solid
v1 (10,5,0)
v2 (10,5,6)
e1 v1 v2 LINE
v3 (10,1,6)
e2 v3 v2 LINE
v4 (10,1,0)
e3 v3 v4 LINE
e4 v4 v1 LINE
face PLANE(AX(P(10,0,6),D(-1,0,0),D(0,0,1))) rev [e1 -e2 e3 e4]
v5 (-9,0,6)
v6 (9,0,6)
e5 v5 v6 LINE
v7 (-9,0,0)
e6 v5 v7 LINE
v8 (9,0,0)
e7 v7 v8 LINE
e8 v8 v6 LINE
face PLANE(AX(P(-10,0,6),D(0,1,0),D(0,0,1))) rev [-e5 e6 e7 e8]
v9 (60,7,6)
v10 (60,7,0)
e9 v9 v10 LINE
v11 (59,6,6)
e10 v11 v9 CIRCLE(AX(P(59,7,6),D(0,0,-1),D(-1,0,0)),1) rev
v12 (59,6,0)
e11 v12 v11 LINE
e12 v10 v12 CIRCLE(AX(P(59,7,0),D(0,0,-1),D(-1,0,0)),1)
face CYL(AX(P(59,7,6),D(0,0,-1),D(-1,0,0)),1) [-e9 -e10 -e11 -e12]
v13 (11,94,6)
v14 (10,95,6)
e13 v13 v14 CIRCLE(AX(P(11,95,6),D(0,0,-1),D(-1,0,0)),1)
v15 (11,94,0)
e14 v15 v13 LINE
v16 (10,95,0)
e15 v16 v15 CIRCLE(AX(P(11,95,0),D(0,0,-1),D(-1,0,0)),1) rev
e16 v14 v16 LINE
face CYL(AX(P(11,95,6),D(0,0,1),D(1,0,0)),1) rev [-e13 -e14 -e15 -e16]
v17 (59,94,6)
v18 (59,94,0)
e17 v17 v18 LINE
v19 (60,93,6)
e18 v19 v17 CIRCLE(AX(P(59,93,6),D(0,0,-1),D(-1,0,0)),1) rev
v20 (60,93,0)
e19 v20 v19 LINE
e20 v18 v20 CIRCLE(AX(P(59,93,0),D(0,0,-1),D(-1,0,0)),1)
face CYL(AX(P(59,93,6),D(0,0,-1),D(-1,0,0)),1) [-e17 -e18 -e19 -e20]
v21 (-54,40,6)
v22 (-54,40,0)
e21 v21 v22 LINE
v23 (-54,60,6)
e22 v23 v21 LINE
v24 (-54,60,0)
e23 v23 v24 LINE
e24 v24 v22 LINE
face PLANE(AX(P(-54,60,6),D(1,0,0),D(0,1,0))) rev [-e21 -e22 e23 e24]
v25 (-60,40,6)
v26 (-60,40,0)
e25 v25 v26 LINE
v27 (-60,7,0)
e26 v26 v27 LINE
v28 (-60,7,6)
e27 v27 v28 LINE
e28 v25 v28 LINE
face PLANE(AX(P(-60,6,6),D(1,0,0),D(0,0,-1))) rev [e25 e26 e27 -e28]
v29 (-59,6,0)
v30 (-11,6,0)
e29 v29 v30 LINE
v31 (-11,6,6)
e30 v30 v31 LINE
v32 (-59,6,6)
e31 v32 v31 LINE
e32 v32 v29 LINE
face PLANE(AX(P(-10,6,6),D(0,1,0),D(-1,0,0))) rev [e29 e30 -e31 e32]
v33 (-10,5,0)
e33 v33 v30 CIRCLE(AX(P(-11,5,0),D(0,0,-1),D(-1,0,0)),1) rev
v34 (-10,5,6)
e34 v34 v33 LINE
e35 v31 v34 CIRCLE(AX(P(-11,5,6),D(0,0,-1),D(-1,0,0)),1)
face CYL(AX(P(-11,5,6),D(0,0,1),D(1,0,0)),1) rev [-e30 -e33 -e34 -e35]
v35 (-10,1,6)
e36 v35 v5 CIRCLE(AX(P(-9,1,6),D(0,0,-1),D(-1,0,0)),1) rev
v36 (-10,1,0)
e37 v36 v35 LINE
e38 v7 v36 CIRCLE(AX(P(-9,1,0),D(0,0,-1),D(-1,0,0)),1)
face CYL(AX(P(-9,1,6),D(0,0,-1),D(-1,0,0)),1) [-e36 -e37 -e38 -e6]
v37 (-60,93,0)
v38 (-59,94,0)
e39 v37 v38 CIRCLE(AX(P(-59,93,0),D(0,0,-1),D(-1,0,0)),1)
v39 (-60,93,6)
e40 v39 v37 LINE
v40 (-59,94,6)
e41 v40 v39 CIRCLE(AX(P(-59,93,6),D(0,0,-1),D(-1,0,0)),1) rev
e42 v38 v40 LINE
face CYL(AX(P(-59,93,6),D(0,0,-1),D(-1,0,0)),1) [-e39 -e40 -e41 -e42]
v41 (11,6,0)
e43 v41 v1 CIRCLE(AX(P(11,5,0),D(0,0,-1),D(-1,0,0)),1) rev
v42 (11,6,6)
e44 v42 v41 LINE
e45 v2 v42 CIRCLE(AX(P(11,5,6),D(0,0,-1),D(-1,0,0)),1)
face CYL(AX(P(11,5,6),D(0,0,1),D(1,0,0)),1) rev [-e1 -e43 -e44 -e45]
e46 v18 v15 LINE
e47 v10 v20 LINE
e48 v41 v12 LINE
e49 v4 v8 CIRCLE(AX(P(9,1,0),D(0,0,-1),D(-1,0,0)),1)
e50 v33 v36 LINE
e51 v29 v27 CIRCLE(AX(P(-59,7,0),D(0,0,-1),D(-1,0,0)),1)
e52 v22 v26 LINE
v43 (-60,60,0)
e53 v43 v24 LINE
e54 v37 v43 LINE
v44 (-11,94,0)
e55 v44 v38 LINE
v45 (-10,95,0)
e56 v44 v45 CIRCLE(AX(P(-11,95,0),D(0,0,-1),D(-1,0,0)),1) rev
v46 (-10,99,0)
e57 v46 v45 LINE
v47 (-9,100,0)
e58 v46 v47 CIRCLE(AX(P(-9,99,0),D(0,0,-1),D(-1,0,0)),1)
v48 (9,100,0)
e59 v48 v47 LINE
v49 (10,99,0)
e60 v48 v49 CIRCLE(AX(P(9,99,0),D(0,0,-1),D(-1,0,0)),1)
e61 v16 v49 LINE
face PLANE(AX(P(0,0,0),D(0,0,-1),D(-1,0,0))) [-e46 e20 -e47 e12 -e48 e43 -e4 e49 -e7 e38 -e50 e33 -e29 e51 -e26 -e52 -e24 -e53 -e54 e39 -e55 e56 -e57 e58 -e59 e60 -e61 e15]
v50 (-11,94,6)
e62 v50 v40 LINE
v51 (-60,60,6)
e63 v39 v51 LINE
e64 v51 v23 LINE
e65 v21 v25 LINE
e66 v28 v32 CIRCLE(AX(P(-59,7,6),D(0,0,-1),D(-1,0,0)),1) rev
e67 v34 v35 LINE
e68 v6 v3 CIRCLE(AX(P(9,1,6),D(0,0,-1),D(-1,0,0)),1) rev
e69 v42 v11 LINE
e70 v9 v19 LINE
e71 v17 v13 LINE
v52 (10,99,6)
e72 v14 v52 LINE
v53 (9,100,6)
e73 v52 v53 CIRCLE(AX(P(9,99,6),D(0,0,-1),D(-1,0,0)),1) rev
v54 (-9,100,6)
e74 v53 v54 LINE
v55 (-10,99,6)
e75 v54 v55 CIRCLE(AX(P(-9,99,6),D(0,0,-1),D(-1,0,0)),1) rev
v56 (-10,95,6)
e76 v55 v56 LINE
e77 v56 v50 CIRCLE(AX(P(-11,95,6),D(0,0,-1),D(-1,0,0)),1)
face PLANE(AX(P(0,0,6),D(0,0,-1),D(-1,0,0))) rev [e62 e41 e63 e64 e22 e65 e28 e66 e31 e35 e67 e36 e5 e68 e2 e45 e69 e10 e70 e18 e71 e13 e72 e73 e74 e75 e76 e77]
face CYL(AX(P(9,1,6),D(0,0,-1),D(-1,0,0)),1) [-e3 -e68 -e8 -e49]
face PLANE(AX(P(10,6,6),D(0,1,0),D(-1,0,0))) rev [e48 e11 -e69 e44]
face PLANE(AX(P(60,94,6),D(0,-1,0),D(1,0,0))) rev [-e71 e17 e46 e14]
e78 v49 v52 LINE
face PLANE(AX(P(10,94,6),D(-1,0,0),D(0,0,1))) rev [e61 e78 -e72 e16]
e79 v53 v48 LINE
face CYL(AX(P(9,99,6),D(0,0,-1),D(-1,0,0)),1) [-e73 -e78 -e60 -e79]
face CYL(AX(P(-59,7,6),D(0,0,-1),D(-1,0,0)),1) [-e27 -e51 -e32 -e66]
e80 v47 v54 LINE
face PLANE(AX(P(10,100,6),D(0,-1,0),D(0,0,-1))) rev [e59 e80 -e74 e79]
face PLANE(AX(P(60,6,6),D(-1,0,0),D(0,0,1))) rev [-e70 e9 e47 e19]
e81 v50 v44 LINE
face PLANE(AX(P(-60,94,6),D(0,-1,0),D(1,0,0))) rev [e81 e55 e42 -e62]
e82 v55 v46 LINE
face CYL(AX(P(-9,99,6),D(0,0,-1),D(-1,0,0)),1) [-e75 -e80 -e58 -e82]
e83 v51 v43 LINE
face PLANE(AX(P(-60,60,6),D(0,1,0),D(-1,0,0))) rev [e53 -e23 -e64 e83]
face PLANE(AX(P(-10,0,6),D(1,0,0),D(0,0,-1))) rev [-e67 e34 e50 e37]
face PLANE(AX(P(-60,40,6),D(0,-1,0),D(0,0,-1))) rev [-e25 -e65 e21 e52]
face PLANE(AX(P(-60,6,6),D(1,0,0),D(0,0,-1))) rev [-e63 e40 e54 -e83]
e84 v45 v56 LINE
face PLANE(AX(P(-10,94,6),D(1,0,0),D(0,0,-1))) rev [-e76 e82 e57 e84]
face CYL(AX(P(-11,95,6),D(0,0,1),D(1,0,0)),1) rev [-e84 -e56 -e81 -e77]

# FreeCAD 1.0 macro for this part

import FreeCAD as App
import Part
import Sketcher


def edges_at(feature, points):
    """Names of the edges that pass closest to the given points."""
    edges = feature.Shape.Edges
    near = lambda p: min(range(len(edges)), key=lambda i: edges[i].distToShape(Part.Vertex(*p))[0])
    return sorted({f"Edge{near(p) + 1}" for p in points})

doc = App.newDocument("Part")
body = doc.addObject("PartDesign::Body", "Body")

# Sketch on XY plane
sketch1 = body.newObject("Sketcher::SketchObject", "Sketch")
sketch1.AttachmentSupport = (doc.getObject("XY_Plane"), [""])
sketch1.MapMode = "FlatFace"
sketch1.addGeometry(Part.LineSegment(App.Vector(-10, 0, 0), App.Vector(10, 0, 0)), False)
sketch1.addGeometry(Part.LineSegment(App.Vector(10, 0, 0), App.Vector(10, 6, 0)), False)
sketch1.addGeometry(Part.LineSegment(App.Vector(10, 6, 0), App.Vector(60, 6, 0)), False)
sketch1.addGeometry(Part.LineSegment(App.Vector(60, 6, 0), App.Vector(60, 94, 0)), False)
sketch1.addGeometry(Part.LineSegment(App.Vector(60, 94, 0), App.Vector(10, 94, 0)), False)
sketch1.addGeometry(Part.LineSegment(App.Vector(10, 94, 0), App.Vector(10, 100, 0)), False)
sketch1.addGeometry(Part.LineSegment(App.Vector(10, 100, 0), App.Vector(-10, 100, 0)), False)
sketch1.addGeometry(Part.LineSegment(App.Vector(-10, 100, 0), App.Vector(-10, 94, 0)), False)
sketch1.addGeometry(Part.LineSegment(App.Vector(-10, 94, 0), App.Vector(-60, 94, 0)), False)
sketch1.addGeometry(Part.LineSegment(App.Vector(-60, 94, 0), App.Vector(-60, 6, 0)), False)
sketch1.addGeometry(Part.LineSegment(App.Vector(-60, 6, 0), App.Vector(-10, 6, 0)), False)
sketch1.addGeometry(Part.LineSegment(App.Vector(-10, 6, 0), App.Vector(-10, 0, 0)), False)
sketch1.addConstraint(Sketcher.Constraint("Coincident", 0, 2, 1, 1))
sketch1.addConstraint(Sketcher.Constraint("Coincident", 1, 2, 2, 1))
sketch1.addConstraint(Sketcher.Constraint("Coincident", 2, 2, 3, 1))
sketch1.addConstraint(Sketcher.Constraint("Coincident", 3, 2, 4, 1))
sketch1.addConstraint(Sketcher.Constraint("Coincident", 4, 2, 5, 1))
sketch1.addConstraint(Sketcher.Constraint("Coincident", 5, 2, 6, 1))
sketch1.addConstraint(Sketcher.Constraint("Coincident", 6, 2, 7, 1))
sketch1.addConstraint(Sketcher.Constraint("Coincident", 7, 2, 8, 1))
sketch1.addConstraint(Sketcher.Constraint("Coincident", 8, 2, 9, 1))
sketch1.addConstraint(Sketcher.Constraint("Coincident", 9, 2, 10, 1))
sketch1.addConstraint(Sketcher.Constraint("Coincident", 10, 2, 11, 1))
sketch1.addConstraint(Sketcher.Constraint("Coincident", 11, 2, 0, 1))
sketch1.addConstraint(Sketcher.Constraint("Horizontal", 0))
sketch1.addConstraint(Sketcher.Constraint("Vertical", 1))
sketch1.addConstraint(Sketcher.Constraint("Horizontal", 2))
sketch1.addConstraint(Sketcher.Constraint("Vertical", 3))
sketch1.addConstraint(Sketcher.Constraint("Horizontal", 4))
sketch1.addConstraint(Sketcher.Constraint("Vertical", 5))
sketch1.addConstraint(Sketcher.Constraint("Horizontal", 6))
sketch1.addConstraint(Sketcher.Constraint("Vertical", 7))
sketch1.addConstraint(Sketcher.Constraint("Horizontal", 8))
sketch1.addConstraint(Sketcher.Constraint("Vertical", 9))
sketch1.addConstraint(Sketcher.Constraint("Horizontal", 10))
sketch1.addConstraint(Sketcher.Constraint("Vertical", 11))
sketch1.addConstraint(Sketcher.Constraint("Symmetric", 0, 2, 11, 2, -1, 1))
sketch1.addConstraint(Sketcher.Constraint("Symmetric", 4, 2, 7, 2, -2))
sketch1.addConstraint(Sketcher.Constraint("Symmetric", 2, 2, 9, 2, -2))
sketch1.addConstraint(Sketcher.Constraint("Vertical", 1, 2, 4, 2))
sketch1.addConstraint(Sketcher.Constraint("Equal", 1, 5))
sketch1.addConstraint(Sketcher.Constraint("DistanceX", 0, 1, 0, 2, 20.0))
sketch1.addConstraint(Sketcher.Constraint("DistanceX", 2, 1, 2, 2, 50.0))
sketch1.addConstraint(Sketcher.Constraint("DistanceY", 1, 1, 1, 2, 6.0))
sketch1.addConstraint(Sketcher.Constraint("DistanceY", 3, 1, 3, 2, 88.0))
pad1 = body.newObject("PartDesign::Pad", "Pad")
pad1.Profile = sketch1
pad1.Length = 6
doc.recompute()

fillet = body.newObject("PartDesign::Fillet", "Fillet")
fillet.Base = (pad1, edges_at(pad1, [
    (60, 94, 3),
    (60, 6, 3),
    (10, 6, 3),
    (10, 0, 3),
    (-10, 0, 3),
    (-10, 6, 3),
    (-60, 6, 3),
    (-60, 94, 3),
    (-10, 94, 3),
    (-10, 100, 3),
    (10, 100, 3),
    (10, 94, 3),
]))
fillet.Radius = 1

# Sketch on XY plane
sketch2 = body.newObject("Sketcher::SketchObject", "Sketch001")
sketch2.AttachmentSupport = (doc.getObject("XY_Plane"), [""])
sketch2.MapMode = "FlatFace"
sketch2.addGeometry(Part.LineSegment(App.Vector(-54, 60, 0), App.Vector(-54, 40, 0)), False)
sketch2.addGeometry(Part.LineSegment(App.Vector(-54, 40, 0), App.Vector(-60, 40, 0)), False)
sketch2.addGeometry(Part.LineSegment(App.Vector(-60, 40, 0), App.Vector(-60, 60, 0)), False)
sketch2.addGeometry(Part.LineSegment(App.Vector(-60, 60, 0), App.Vector(-54, 60, 0)), False)
sketch2.addConstraint(Sketcher.Constraint("Coincident", 0, 2, 1, 1))
sketch2.addConstraint(Sketcher.Constraint("Coincident", 1, 2, 2, 1))
sketch2.addConstraint(Sketcher.Constraint("Coincident", 2, 2, 3, 1))
sketch2.addConstraint(Sketcher.Constraint("Coincident", 3, 2, 0, 1))
sketch2.addConstraint(Sketcher.Constraint("Vertical", 0))
sketch2.addConstraint(Sketcher.Constraint("Horizontal", 1))
sketch2.addConstraint(Sketcher.Constraint("Vertical", 2))
sketch2.addConstraint(Sketcher.Constraint("Horizontal", 3))
sketch2.addConstraint(Sketcher.Constraint("DistanceX", 1, 2, 1, 1, 6.0))
sketch2.addConstraint(Sketcher.Constraint("DistanceY", 0, 2, 0, 1, 20.0))
sketch2.addConstraint(Sketcher.Constraint("DistanceX", 0, 2, -1, 1, 54.0))
sketch2.addConstraint(Sketcher.Constraint("DistanceY", -1, 1, 0, 2, 40.0))
pocket1 = body.newObject("PartDesign::Pocket", "Pocket")
pocket1.Profile = sketch2
pocket1.Type = "ThroughAll"
pocket1.Reversed = True

doc.recompute()
